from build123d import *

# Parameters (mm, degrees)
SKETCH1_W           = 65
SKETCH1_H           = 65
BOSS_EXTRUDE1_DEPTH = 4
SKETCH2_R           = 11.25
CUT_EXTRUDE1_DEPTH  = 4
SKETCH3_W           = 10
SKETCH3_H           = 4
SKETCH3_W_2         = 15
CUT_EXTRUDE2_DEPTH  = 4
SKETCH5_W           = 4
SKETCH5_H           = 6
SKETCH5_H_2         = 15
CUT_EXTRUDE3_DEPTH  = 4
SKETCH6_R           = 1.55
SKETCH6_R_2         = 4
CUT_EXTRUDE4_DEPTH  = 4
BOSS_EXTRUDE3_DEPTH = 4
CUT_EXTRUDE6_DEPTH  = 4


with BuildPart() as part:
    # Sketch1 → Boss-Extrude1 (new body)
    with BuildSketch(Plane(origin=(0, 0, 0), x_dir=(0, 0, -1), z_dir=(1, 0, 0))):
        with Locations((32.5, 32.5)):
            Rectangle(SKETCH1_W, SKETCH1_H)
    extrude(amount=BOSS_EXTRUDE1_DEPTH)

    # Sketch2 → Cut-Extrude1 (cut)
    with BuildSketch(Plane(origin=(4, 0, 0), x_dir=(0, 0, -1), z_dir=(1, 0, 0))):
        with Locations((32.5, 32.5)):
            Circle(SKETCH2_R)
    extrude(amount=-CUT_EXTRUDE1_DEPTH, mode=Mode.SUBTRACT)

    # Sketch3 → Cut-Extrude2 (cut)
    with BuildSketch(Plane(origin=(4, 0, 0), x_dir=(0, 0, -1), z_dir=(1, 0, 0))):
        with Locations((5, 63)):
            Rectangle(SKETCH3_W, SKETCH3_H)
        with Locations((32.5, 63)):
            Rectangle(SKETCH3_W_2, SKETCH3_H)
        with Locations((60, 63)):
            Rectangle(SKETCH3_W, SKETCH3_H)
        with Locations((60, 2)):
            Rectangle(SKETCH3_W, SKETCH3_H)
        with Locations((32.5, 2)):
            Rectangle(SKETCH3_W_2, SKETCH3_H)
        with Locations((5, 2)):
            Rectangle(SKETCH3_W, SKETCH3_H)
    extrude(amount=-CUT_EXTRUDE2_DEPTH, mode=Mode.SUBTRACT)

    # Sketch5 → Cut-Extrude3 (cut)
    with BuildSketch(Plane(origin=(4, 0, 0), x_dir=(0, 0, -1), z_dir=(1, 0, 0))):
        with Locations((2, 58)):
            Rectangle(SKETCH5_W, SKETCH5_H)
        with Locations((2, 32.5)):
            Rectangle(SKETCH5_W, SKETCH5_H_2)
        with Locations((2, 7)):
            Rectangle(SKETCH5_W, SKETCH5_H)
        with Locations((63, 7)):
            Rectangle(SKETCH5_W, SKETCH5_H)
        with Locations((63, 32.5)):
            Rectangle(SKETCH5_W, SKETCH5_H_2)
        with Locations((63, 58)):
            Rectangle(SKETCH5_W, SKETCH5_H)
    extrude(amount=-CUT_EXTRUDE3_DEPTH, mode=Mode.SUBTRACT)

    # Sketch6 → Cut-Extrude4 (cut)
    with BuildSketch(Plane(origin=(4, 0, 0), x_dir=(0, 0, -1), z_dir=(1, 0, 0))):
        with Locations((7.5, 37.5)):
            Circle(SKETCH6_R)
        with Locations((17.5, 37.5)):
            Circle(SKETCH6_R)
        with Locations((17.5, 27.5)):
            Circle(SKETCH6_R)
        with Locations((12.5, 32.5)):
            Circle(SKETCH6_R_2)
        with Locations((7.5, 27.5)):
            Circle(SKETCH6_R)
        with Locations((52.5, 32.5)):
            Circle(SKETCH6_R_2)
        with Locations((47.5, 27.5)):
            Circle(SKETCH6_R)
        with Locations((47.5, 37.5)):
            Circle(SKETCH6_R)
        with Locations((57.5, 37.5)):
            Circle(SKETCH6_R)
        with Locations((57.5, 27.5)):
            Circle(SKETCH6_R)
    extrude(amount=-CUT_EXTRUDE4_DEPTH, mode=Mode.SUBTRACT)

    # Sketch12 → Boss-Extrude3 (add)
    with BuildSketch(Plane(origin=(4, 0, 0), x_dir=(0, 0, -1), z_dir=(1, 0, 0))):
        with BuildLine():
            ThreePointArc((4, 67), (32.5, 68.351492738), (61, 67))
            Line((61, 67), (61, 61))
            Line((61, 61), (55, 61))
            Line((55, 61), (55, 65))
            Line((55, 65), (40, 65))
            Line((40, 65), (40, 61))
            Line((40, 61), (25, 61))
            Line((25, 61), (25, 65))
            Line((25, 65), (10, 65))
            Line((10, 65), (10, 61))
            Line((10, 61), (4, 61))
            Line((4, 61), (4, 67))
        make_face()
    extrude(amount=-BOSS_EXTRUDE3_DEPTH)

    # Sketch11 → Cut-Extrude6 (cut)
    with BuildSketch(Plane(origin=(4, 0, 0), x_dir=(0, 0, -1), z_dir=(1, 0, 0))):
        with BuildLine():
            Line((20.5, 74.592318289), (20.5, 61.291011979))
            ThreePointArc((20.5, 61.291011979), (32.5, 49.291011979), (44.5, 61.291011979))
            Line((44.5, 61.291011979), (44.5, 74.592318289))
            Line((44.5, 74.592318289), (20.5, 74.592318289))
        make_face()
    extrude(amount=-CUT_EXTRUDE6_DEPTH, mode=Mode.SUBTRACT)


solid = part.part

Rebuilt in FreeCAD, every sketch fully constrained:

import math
import FreeCAD as App
import Part
import Sketcher
Q = App.Units.Quantity

doc = App.newDocument("Part")
params = doc.addObject("Spreadsheet::Sheet", "Params")
for row, (alias, value) in enumerate([
    ("sketch1_width", "65 mm"),
    ("pad1_length", "4 mm"),
    ("sketch2_diameter", "22.5 mm"),
    ("pocket1_length", "4 mm"),
    ("sketch3_width", "4 mm"),
    ("sketch3_height", "10 mm"),
    ("sketch3_height2", "15 mm"),
    ("pocket2_length", "4 mm"),
    ("sketch4_width", "6 mm"),
    ("sketch4_width2", "15 mm"),
    ("sketch4_height", "4 mm"),
    ("pocket3_length", "4 mm"),
    ("sketch5_diameter", "8 mm"),
    ("sketch5_diameter2", "3.1 mm"),
    ("pocket4_length", "4 mm"),
    ("sketch6_width", "6 mm"),
    ("sketch6_width2", "4 mm"),
    ("sketch6_height", "15 mm"),
    ("pad2_length", "4 mm"),
    ("sketch7_radius", "12 mm"),
    ("pocket5_length", "4 mm"),
], start=1):
    params.set(f"A{row}", alias)
    params.set(f"B{row}", "=" + value)
    params.setAlias(f"B{row}", alias)

body = doc.addObject("PartDesign::Body", "Body")

sketch1 = body.newObject("Sketcher::SketchObject", "Sketch")
sketch1.AttachmentSupport = (doc.getObject("YZ_Plane"), [""])
sketch1.MapMode = "FlatFace"
sketch1.addGeometry([
    Part.LineSegment(App.Vector(65, 0, 0), App.Vector(0, 0, 0)),
    Part.LineSegment(App.Vector(0, 0, 0), App.Vector(0, -65, 0)),
    Part.LineSegment(App.Vector(0, -65, 0), App.Vector(65, -65, 0)),
    Part.LineSegment(App.Vector(65, -65, 0), App.Vector(65, 0, 0)),
], False)
sketch1.addConstraint([
    Sketcher.Constraint("Coincident", 0, 2, 1, 1),
    Sketcher.Constraint("Coincident", 1, 2, 2, 1),
    Sketcher.Constraint("Coincident", 2, 2, 3, 1),
    Sketcher.Constraint("Coincident", 3, 2, 0, 1),
    Sketcher.Constraint("Horizontal", 0),
    Sketcher.Constraint("Vertical", 1),
    Sketcher.Constraint("Horizontal", 2),
    Sketcher.Constraint("Vertical", 3),
    Sketcher.Constraint("Coincident", 0, 2, -1, 1),
    Sketcher.Constraint("Equal", 2, 1),
    Sketcher.Constraint("DistanceX", 0, 2, 0, 1, Q("65 mm")),
])
sketch1.setExpression("Constraints[10]", "Params.sketch1_width")
pad1 = body.newObject("PartDesign::Pad", "Pad")
pad1.Profile = sketch1
pad1.setExpression("Length", "Params.pad1_length")

sketch2 = body.newObject("Sketcher::SketchObject", "Sketch001")
sketch2.AttachmentSupport = (doc.getObject("YZ_Plane"), [""])
sketch2.MapMode = "FlatFace"
sketch2.AttachmentOffset = App.Placement(App.Vector(0, 0, 4), App.Rotation())
sketch2.addGeometry(Part.Circle(App.Vector(32.5, -32.5, 0), App.Vector(0, 0, 1), 11.25), False)
sketch2.addConstraint([
    Sketcher.Constraint("Diameter", 0, Q("22.5 mm")),
    Sketcher.Constraint("DistanceX", -1, 1, 0, 3, Q("32.5 mm")),
    Sketcher.Constraint("DistanceY", 0, 3, -1, 1, Q("32.5 mm")),
])
sketch2.setExpression("Constraints[0]", "Params.sketch2_diameter")
pocket1 = body.newObject("PartDesign::Pocket", "Pocket")
pocket1.Profile = sketch2
pocket1.setExpression("Length", "Params.pocket1_length")

sketch3 = body.newObject("Sketcher::SketchObject", "Sketch002")
sketch3.AttachmentSupport = (doc.getObject("YZ_Plane"), [""])
sketch3.MapMode = "FlatFace"
sketch3.AttachmentOffset = App.Placement(App.Vector(0, 0, 4), App.Rotation())
sketch3.addGeometry([
    Part.LineSegment(App.Vector(65, 0, 0), App.Vector(61, 0, 0)),
    Part.LineSegment(App.Vector(61, 0, 0), App.Vector(61, -10, 0)),
    Part.LineSegment(App.Vector(61, -10, 0), App.Vector(65, -10, 0)),
    Part.LineSegment(App.Vector(65, -10, 0), App.Vector(65, 0, 0)),
    Part.LineSegment(App.Vector(65, -25, 0), App.Vector(61, -25, 0)),
    Part.LineSegment(App.Vector(61, -25, 0), App.Vector(61, -40, 0)),
    Part.LineSegment(App.Vector(61, -40, 0), App.Vector(65, -40, 0)),
    Part.LineSegment(App.Vector(65, -40, 0), App.Vector(65, -25, 0)),
    Part.LineSegment(App.Vector(65, -55, 0), App.Vector(61, -55, 0)),
    Part.LineSegment(App.Vector(61, -55, 0), App.Vector(61, -65, 0)),
    Part.LineSegment(App.Vector(61, -65, 0), App.Vector(65, -65, 0)),
    Part.LineSegment(App.Vector(65, -65, 0), App.Vector(65, -55, 0)),
    Part.LineSegment(App.Vector(4, -55, 0), App.Vector(0, -55, 0)),
    Part.LineSegment(App.Vector(0, -55, 0), App.Vector(0, -65, 0)),
    Part.LineSegment(App.Vector(0, -65, 0), App.Vector(4, -65, 0)),
    Part.LineSegment(App.Vector(4, -65, 0), App.Vector(4, -55, 0)),
    Part.LineSegment(App.Vector(4, -25, 0), App.Vector(0, -25, 0)),
    Part.LineSegment(App.Vector(0, -25, 0), App.Vector(0, -40, 0)),
    Part.LineSegment(App.Vector(0, -40, 0), App.Vector(4, -40, 0)),
    Part.LineSegment(App.Vector(4, -40, 0), App.Vector(4, -25, 0)),
    Part.LineSegment(App.Vector(4, 0, 0), App.Vector(0, 0, 0)),
    Part.LineSegment(App.Vector(0, 0, 0), App.Vector(0, -10, 0)),
    Part.LineSegment(App.Vector(0, -10, 0), App.Vector(4, -10, 0)),
    Part.LineSegment(App.Vector(4, -10, 0), App.Vector(4, 0, 0)),
], False)
sketch3.addConstraint([
    Sketcher.Constraint("Coincident", 0, 2, 1, 1),
    Sketcher.Constraint("Coincident", 1, 2, 2, 1),
    Sketcher.Constraint("Coincident", 2, 2, 3, 1),
    Sketcher.Constraint("Coincident", 3, 2, 0, 1),
    Sketcher.Constraint("Coincident", 4, 2, 5, 1),
    Sketcher.Constraint("Coincident", 5, 2, 6, 1),
    Sketcher.Constraint("Coincident", 6, 2, 7, 1),
    Sketcher.Constraint("Coincident", 7, 2, 4, 1),
    Sketcher.Constraint("Coincident", 8, 2, 9, 1),
    Sketcher.Constraint("Coincident", 9, 2, 10, 1),
    Sketcher.Constraint("Coincident", 10, 2, 11, 1),
    Sketcher.Constraint("Coincident", 11, 2, 8, 1),
    Sketcher.Constraint("Coincident", 12, 2, 13, 1),
    Sketcher.Constraint("Coincident", 13, 2, 14, 1),
    Sketcher.Constraint("Coincident", 14, 2, 15, 1),
    Sketcher.Constraint("Coincident", 15, 2, 12, 1),
    Sketcher.Constraint("Coincident", 16, 2, 17, 1),
    Sketcher.Constraint("Coincident", 17, 2, 18, 1),
    Sketcher.Constraint("Coincident", 18, 2, 19, 1),
    Sketcher.Constraint("Coincident", 19, 2, 16, 1),
    Sketcher.Constraint("Coincident", 20, 2, 21, 1),
    Sketcher.Constraint("Coincident", 21, 2, 22, 1),
    Sketcher.Constraint("Coincident", 22, 2, 23, 1),
    Sketcher.Constraint("Coincident", 23, 2, 20, 1),
    Sketcher.Constraint("Horizontal", 0),
    Sketcher.Constraint("Vertical", 1),
    Sketcher.Constraint("Horizontal", 2),
    Sketcher.Constraint("Vertical", 3),
    Sketcher.Constraint("Horizontal", 4),
    Sketcher.Constraint("Vertical", 5),
    Sketcher.Constraint("Horizontal", 6),
    Sketcher.Constraint("Vertical", 7),
    Sketcher.Constraint("Horizontal", 8),
    Sketcher.Constraint("Vertical", 9),
    Sketcher.Constraint("Horizontal", 10),
    Sketcher.Constraint("Vertical", 11),
    Sketcher.Constraint("Horizontal", 12),
    Sketcher.Constraint("Vertical", 13),
    Sketcher.Constraint("Horizontal", 14),
    Sketcher.Constraint("Vertical", 15),
    Sketcher.Constraint("Horizontal", 16),
    Sketcher.Constraint("Vertical", 17),
    Sketcher.Constraint("Horizontal", 18),
    Sketcher.Constraint("Vertical", 19),
    Sketcher.Constraint("Horizontal", 20),
    Sketcher.Constraint("Vertical", 21),
    Sketcher.Constraint("Horizontal", 22),
    Sketcher.Constraint("Vertical", 23),
    Sketcher.Constraint("Coincident", 20, 2, -1, 1),
    Sketcher.Constraint("PointOnObject", 0, 2, -1),
    Sketcher.Constraint("PointOnObject", 12, 2, -2),
    Sketcher.Constraint("PointOnObject", 16, 2, -2),
    Sketcher.Constraint("Horizontal", 11, 2, 12, 2),
    Sketcher.Constraint("Horizontal", 10, 2, 13, 2),
    Sketcher.Constraint("Horizontal", 7, 2, 16, 2),
    Sketcher.Constraint("Horizontal", 6, 2, 17, 2),
    Sketcher.Constraint("Horizontal", 2, 2, 21, 2),
    Sketcher.Constraint("Vertical", 1, 2, 4, 2),
    Sketcher.Constraint("Vertical", 3, 2, 6, 2),
    Sketcher.Constraint("Vertical", 5, 2, 8, 2),
    Sketcher.Constraint("Vertical", 7, 2, 10, 2),
    Sketcher.Constraint("Vertical", 15, 2, 18, 2),
    Sketcher.Constraint("Vertical", 19, 2, 22, 2),
    Sketcher.Constraint("Equal", 10, 12),
    Sketcher.Constraint("Equal", 3, 9),
    Sketcher.Constraint("DistanceX", 0, 2, 0, 1, Q("4 mm")),
    Sketcher.Constraint("DistanceY", 1, 2, 1, 1, Q("10 mm")),
    Sketcher.Constraint("DistanceY", 5, 2, 5, 1, Q("15 mm")),
    Sketcher.Constraint("DistanceX", -1, 1, 0, 2, Q("61 mm")),
    Sketcher.Constraint("DistanceY", 4, 2, -1, 1, Q("25 mm")),
    Sketcher.Constraint("DistanceY", 8, 2, -1, 1, Q("55 mm")),
])
sketch3.setExpression("Constraints[65]", "Params.sketch3_width")
sketch3.setExpression("Constraints[66]", "Params.sketch3_height")
sketch3.setExpression("Constraints[67]", "Params.sketch3_height2")
pocket2 = body.newObject("PartDesign::Pocket", "Pocket001")
pocket2.Profile = sketch3
pocket2.setExpression("Length", "Params.pocket2_length")

sketch4 = body.newObject("Sketcher::SketchObject", "Sketch003")
sketch4.AttachmentSupport = (doc.getObject("YZ_Plane"), [""])
sketch4.MapMode = "FlatFace"
sketch4.AttachmentOffset = App.Placement(App.Vector(0, 0, 4), App.Rotation())
sketch4.addGeometry([
    Part.LineSegment(App.Vector(61, 0, 0), App.Vector(55, 0, 0)),
    Part.LineSegment(App.Vector(55, 0, 0), App.Vector(55, -4, 0)),
    Part.LineSegment(App.Vector(55, -4, 0), App.Vector(61, -4, 0)),
    Part.LineSegment(App.Vector(61, -4, 0), App.Vector(61, 0, 0)),
    Part.LineSegment(App.Vector(40, 0, 0), App.Vector(25, 0, 0)),
    Part.LineSegment(App.Vector(25, 0, 0), App.Vector(25, -4, 0)),
    Part.LineSegment(App.Vector(25, -4, 0), App.Vector(40, -4, 0)),
    Part.LineSegment(App.Vector(40, -4, 0), App.Vector(40, 0, 0)),
    Part.LineSegment(App.Vector(10, 0, 0), App.Vector(4, 0, 0)),
    Part.LineSegment(App.Vector(4, 0, 0), App.Vector(4, -4, 0)),
    Part.LineSegment(App.Vector(4, -4, 0), App.Vector(10, -4, 0)),
    Part.LineSegment(App.Vector(10, -4, 0), App.Vector(10, 0, 0)),
    Part.LineSegment(App.Vector(10, -61, 0), App.Vector(4, -61, 0)),
    Part.LineSegment(App.Vector(4, -61, 0), App.Vector(4, -65, 0)),
    Part.LineSegment(App.Vector(4, -65, 0), App.Vector(10, -65, 0)),
    Part.LineSegment(App.Vector(10, -65, 0), App.Vector(10, -61, 0)),
    Part.LineSegment(App.Vector(40, -61, 0), App.Vector(25, -61, 0)),
    Part.LineSegment(App.Vector(25, -61, 0), App.Vector(25, -65, 0)),
    Part.LineSegment(App.Vector(25, -65, 0), App.Vector(40, -65, 0)),
    Part.LineSegment(App.Vector(40, -65, 0), App.Vector(40, -61, 0)),
    Part.LineSegment(App.Vector(61, -61, 0), App.Vector(55, -61, 0)),
    Part.LineSegment(App.Vector(55, -61, 0), App.Vector(55, -65, 0)),
    Part.LineSegment(App.Vector(55, -65, 0), App.Vector(61, -65, 0)),
    Part.LineSegment(App.Vector(61, -65, 0), App.Vector(61, -61, 0)),
], False)
sketch4.addConstraint([
    Sketcher.Constraint("Coincident", 0, 2, 1, 1),
    Sketcher.Constraint("Coincident", 1, 2, 2, 1),
    Sketcher.Constraint("Coincident", 2, 2, 3, 1),
    Sketcher.Constraint("Coincident", 3, 2, 0, 1),
    Sketcher.Constraint("Coincident", 4, 2, 5, 1),
    Sketcher.Constraint("Coincident", 5, 2, 6, 1),
    Sketcher.Constraint("Coincident", 6, 2, 7, 1),
    Sketcher.Constraint("Coincident", 7, 2, 4, 1),
    Sketcher.Constraint("Coincident", 8, 2, 9, 1),
    Sketcher.Constraint("Coincident", 9, 2, 10, 1),
    Sketcher.Constraint("Coincident", 10, 2, 11, 1),
    Sketcher.Constraint("Coincident", 11, 2, 8, 1),
    Sketcher.Constraint("Coincident", 12, 2, 13, 1),
    Sketcher.Constraint("Coincident", 13, 2, 14, 1),
    Sketcher.Constraint("Coincident", 14, 2, 15, 1),
    Sketcher.Constraint("Coincident", 15, 2, 12, 1),
    Sketcher.Constraint("Coincident", 16, 2, 17, 1),
    Sketcher.Constraint("Coincident", 17, 2, 18, 1),
    Sketcher.Constraint("Coincident", 18, 2, 19, 1),
    Sketcher.Constraint("Coincident", 19, 2, 16, 1),
    Sketcher.Constraint("Coincident", 20, 2, 21, 1),
    Sketcher.Constraint("Coincident", 21, 2, 22, 1),
    Sketcher.Constraint("Coincident", 22, 2, 23, 1),
    Sketcher.Constraint("Coincident", 23, 2, 20, 1),
    Sketcher.Constraint("Horizontal", 0),
    Sketcher.Constraint("Vertical", 1),
    Sketcher.Constraint("Horizontal", 2),
    Sketcher.Constraint("Vertical", 3),
    Sketcher.Constraint("Horizontal", 4),
    Sketcher.Constraint("Vertical", 5),
    Sketcher.Constraint("Horizontal", 6),
    Sketcher.Constraint("Vertical", 7),
    Sketcher.Constraint("Horizontal", 8),
    Sketcher.Constraint("Vertical", 9),
    Sketcher.Constraint("Horizontal", 10),
    Sketcher.Constraint("Vertical", 11),
    Sketcher.Constraint("Horizontal", 12),
    Sketcher.Constraint("Vertical", 13),
    Sketcher.Constraint("Horizontal", 14),
    Sketcher.Constraint("Vertical", 15),
    Sketcher.Constraint("Horizontal", 16),
    Sketcher.Constraint("Vertical", 17),
    Sketcher.Constraint("Horizontal", 18),
    Sketcher.Constraint("Vertical", 19),
    Sketcher.Constraint("Horizontal", 20),
    Sketcher.Constraint("Vertical", 21),
    Sketcher.Constraint("Horizontal", 22),
    Sketcher.Constraint("Vertical", 23),
    Sketcher.Constraint("PointOnObject", 0, 2, -1),
    Sketcher.Constraint("PointOnObject", 4, 2, -1),
    Sketcher.Constraint("PointOnObject", 8, 2, -1),
    Sketcher.Constraint("Horizontal", 2, 2, 5, 2),
    Sketcher.Constraint("Horizontal", 6, 2, 9, 2),
    Sketcher.Constraint("Horizontal", 15, 2, 16, 2),
    Sketcher.Constraint("Horizontal", 14, 2, 17, 2),
    Sketcher.Constraint("Horizontal", 19, 2, 20, 2),
    Sketcher.Constraint("Horizontal", 18, 2, 21, 2),
    Sketcher.Constraint("Vertical", 9, 2, 12, 2),
    Sketcher.Constraint("Vertical", 11, 2, 14, 2),
    Sketcher.Constraint("Vertical", 5, 2, 16, 2),
    Sketcher.Constraint("Vertical", 7, 2, 18, 2),
    Sketcher.Constraint("Vertical", 1, 2, 20, 2),
    Sketcher.Constraint("Vertical", 3, 2, 22, 2),
    Sketcher.Constraint("Equal", 2, 8),
    Sketcher.Constraint("Equal", 11, 13),
    Sketcher.Constraint("DistanceX", 0, 2, 0, 1, Q("6 mm")),
    Sketcher.Constraint("DistanceX", 4, 2, 4, 1, Q("15 mm")),
    Sketcher.Constraint("DistanceY", 1, 2, 1, 1, Q("4 mm")),
    Sketcher.Constraint("DistanceX", -1, 1, 0, 2, Q("55 mm")),
    Sketcher.Constraint("DistanceX", -1, 1, 4, 2, Q("25 mm")),
    Sketcher.Constraint("DistanceX", -1, 1, 8, 2, Q("4 mm")),
    Sketcher.Constraint("DistanceY", 12, 2, -1, 1, Q("61 mm")),
])
sketch4.setExpression("Constraints[65]", "Params.sketch4_width")
sketch4.setExpression("Constraints[66]", "Params.sketch4_width2")
sketch4.setExpression("Constraints[67]", "Params.sketch4_height")
pocket3 = body.newObject("PartDesign::Pocket", "Pocket002")
pocket3.Profile = sketch4
pocket3.setExpression("Length", "Params.pocket3_length")

sketch5 = body.newObject("Sketcher::SketchObject", "Sketch004")
sketch5.AttachmentSupport = (doc.getObject("YZ_Plane"), [""])
sketch5.MapMode = "FlatFace"
sketch5.AttachmentOffset = App.Placement(App.Vector(0, 0, 4), App.Rotation())
sketch5.addGeometry([
    Part.Circle(App.Vector(37.5, -7.5, 0), App.Vector(0, 0, 1), 1.55),
    Part.Circle(App.Vector(37.5, -17.5, 0), App.Vector(0, 0, 1), 1.55),
    Part.Circle(App.Vector(27.5, -17.5, 0), App.Vector(0, 0, 1), 1.55),
    Part.Circle(App.Vector(32.5, -12.5, 0), App.Vector(0, 0, 1), 4),
    Part.Circle(App.Vector(27.5, -7.5, 0), App.Vector(0, 0, 1), 1.55),
    Part.Circle(App.Vector(32.5, -52.5, 0), App.Vector(0, 0, 1), 4),
    Part.Circle(App.Vector(27.5, -47.5, 0), App.Vector(0, 0, 1), 1.55),
    Part.Circle(App.Vector(37.5, -47.5, 0), App.Vector(0, 0, 1), 1.55),
    Part.Circle(App.Vector(37.5, -57.5, 0), App.Vector(0, 0, 1), 1.55),
    Part.Circle(App.Vector(27.5, -57.5, 0), App.Vector(0, 0, 1), 1.55),
], False)
sketch5.addConstraint([
    Sketcher.Constraint("Equal", 0, 1),
    Sketcher.Constraint("Equal", 1, 2),
    Sketcher.Constraint("Equal", 2, 4),
    Sketcher.Constraint("Equal", 3, 5),
    Sketcher.Constraint("Equal", 4, 6),
    Sketcher.Constraint("Equal", 6, 7),
    Sketcher.Constraint("Equal", 7, 8),
    Sketcher.Constraint("Equal", 8, 9),
    Sketcher.Constraint("Horizontal", 1, 3, 2, 3),
    Sketcher.Constraint("Horizontal", 0, 3, 4, 3),
    Sketcher.Constraint("Horizontal", 6, 3, 7, 3),
    Sketcher.Constraint("Horizontal", 8, 3, 9, 3),
    Sketcher.Constraint("Vertical", 0, 3, 1, 3),
    Sketcher.Constraint("Vertical", 2, 3, 4, 3),
    Sketcher.Constraint("Vertical", 3, 3, 5, 3),
    Sketcher.Constraint("Vertical", 4, 3, 6, 3),
    Sketcher.Constraint("Vertical", 1, 3, 7, 3),
    Sketcher.Constraint("Vertical", 7, 3, 8, 3),
    Sketcher.Constraint("Vertical", 6, 3, 9, 3),
    Sketcher.Constraint("Diameter", 3, Q("8 mm")),
    Sketcher.Constraint("Diameter", 0, Q("3.1 mm")),
    Sketcher.Constraint("DistanceY", 1, 3, 0, 3, Q("10 mm")),
    Sketcher.Constraint("DistanceX", 2, 3, 1, 3, Q("10 mm")),
    Sketcher.Constraint("DistanceX", 3, 3, 0, 3, Q("5 mm")),
    Sketcher.Constraint("DistanceY", 3, 3, 0, 3, Q("5 mm")),
    Sketcher.Constraint("DistanceY", 5, 3, 1, 3, Q("35 mm")),
    Sketcher.Constraint("DistanceY", 5, 3, 6, 3, Q("5 mm")),
    Sketcher.Constraint("DistanceY", 8, 3, 5, 3, Q("5 mm")),
    Sketcher.Constraint("DistanceX", -1, 1, 0, 3, Q("37.5 mm")),
    Sketcher.Constraint("DistanceY", 0, 3, -1, 1, Q("7.5 mm")),
])
sketch5.setExpression("Constraints[19]", "Params.sketch5_diameter")
sketch5.setExpression("Constraints[20]", "Params.sketch5_diameter2")
pocket4 = body.newObject("PartDesign::Pocket", "Pocket003")
pocket4.Profile = sketch5
pocket4.setExpression("Length", "Params.pocket4_length")

sketch6 = body.newObject("Sketcher::SketchObject", "Sketch005")
sketch6.AttachmentSupport = (doc.getObject("YZ_Plane"), [""])
sketch6.MapMode = "FlatFace"
sketch6.AttachmentOffset = App.Placement(App.Vector(0, 0, 4), App.Rotation())
sketch6.addGeometry([
    Part.ArcOfCircle(Part.Circle(App.Vector(-232.825313, -32.5, 0), App.Vector(0, 0, 1), 301.176806), math.radians(-5.429955), math.radians(5.429955)),
    Part.LineSegment(App.Vector(67, -4, 0), App.Vector(61, -4, 0)),
    Part.LineSegment(App.Vector(61, -4, 0), App.Vector(61, -10, 0)),
    Part.LineSegment(App.Vector(61, -10, 0), App.Vector(65, -10, 0)),
    Part.LineSegment(App.Vector(65, -10, 0), App.Vector(65, -25, 0)),
    Part.LineSegment(App.Vector(65, -25, 0), App.Vector(61, -25, 0)),
    Part.LineSegment(App.Vector(61, -25, 0), App.Vector(61, -40, 0)),
    Part.LineSegment(App.Vector(61, -40, 0), App.Vector(65, -40, 0)),
    Part.LineSegment(App.Vector(65, -40, 0), App.Vector(65, -55, 0)),
    Part.LineSegment(App.Vector(65, -55, 0), App.Vector(61, -55, 0)),
    Part.LineSegment(App.Vector(61, -55, 0), App.Vector(61, -61, 0)),
    Part.LineSegment(App.Vector(61, -61, 0), App.Vector(67, -61, 0)),
], False)
sketch6.addConstraint([
    Sketcher.Constraint("Coincident", 0, 2, 1, 1),
    Sketcher.Constraint("Coincident", 1, 2, 2, 1),
    Sketcher.Constraint("Coincident", 2, 2, 3, 1),
    Sketcher.Constraint("Coincident", 3, 2, 4, 1),
    Sketcher.Constraint("Coincident", 4, 2, 5, 1),
    Sketcher.Constraint("Coincident", 5, 2, 6, 1),
    Sketcher.Constraint("Coincident", 6, 2, 7, 1),
    Sketcher.Constraint("Coincident", 7, 2, 8, 1),
    Sketcher.Constraint("Coincident", 8, 2, 9, 1),
    Sketcher.Constraint("Coincident", 9, 2, 10, 1),
    Sketcher.Constraint("Coincident", 10, 2, 11, 1),
    Sketcher.Constraint("Coincident", 11, 2, 0, 1),
    Sketcher.Constraint("Horizontal", 1),
    Sketcher.Constraint("Vertical", 2),
    Sketcher.Constraint("Horizontal", 3),
    Sketcher.Constraint("Vertical", 4),
    Sketcher.Constraint("Horizontal", 5),
    Sketcher.Constraint("Vertical", 6),
    Sketcher.Constraint("Horizontal", 7),
    Sketcher.Constraint("Vertical", 8),
    Sketcher.Constraint("Horizontal", 9),
    Sketcher.Constraint("Vertical", 10),
    Sketcher.Constraint("Horizontal", 11),
    Sketcher.Constraint("Vertical", 2, 2, 5, 2),
    Sketcher.Constraint("Vertical", 4, 2, 7, 2),
    Sketcher.Constraint("Vertical", 6, 2, 9, 2),
    Sketcher.Constraint("Vertical", 0, 2, 11, 2),
    Sketcher.Constraint("Equal", 11, 2),
    Sketcher.Constraint("Equal", 4, 6),
    Sketcher.Constraint("Equal", 6, 8),
    Sketcher.Constraint("Equal", 2, 10),
    Sketcher.Constraint("DistanceX", 1, 2, 1, 1, Q("6 mm")),
    Sketcher.Constraint("DistanceX", 3, 1, 3, 2, Q("4 mm")),
    Sketcher.Constraint("DistanceY", 4, 2, 4, 1, Q("15 mm")),
    Sketcher.Constraint("DistanceX", -1, 1, 0, 2, Q("67 mm")),
    Sketcher.Constraint("DistanceY", 1, 2, -1, 1, Q("4 mm")),
    Sketcher.Constraint("Radius", 0, Q("301.176806 mm")),
])
sketch6.setExpression("Constraints[31]", "Params.sketch6_width")
sketch6.setExpression("Constraints[32]", "Params.sketch6_width2")
sketch6.setExpression("Constraints[33]", "Params.sketch6_height")
pad2 = body.newObject("PartDesign::Pad", "Pad001")
pad2.Profile = sketch6
pad2.setExpression("Length", "Params.pad2_length")
pad2.Reversed = True

sketch7 = body.newObject("Sketcher::SketchObject", "Sketch006")
sketch7.AttachmentSupport = (doc.getObject("YZ_Plane"), [""])
sketch7.MapMode = "FlatFace"
sketch7.AttachmentOffset = App.Placement(App.Vector(0, 0, 4), App.Rotation())
sketch7.addGeometry([
    Part.LineSegment(App.Vector(74.592318, -20.5, 0), App.Vector(61.291012, -20.5, 0)),
    Part.ArcOfCircle(Part.Circle(App.Vector(61.291012, -32.5, 0), App.Vector(0, 0, 1), 12), math.radians(90), math.radians(270)),
    Part.LineSegment(App.Vector(61.291012, -44.5, 0), App.Vector(74.592318, -44.5, 0)),
    Part.LineSegment(App.Vector(74.592318, -44.5, 0), App.Vector(74.592318, -20.5, 0)),
], False)
sketch7.addConstraint([
    Sketcher.Constraint("Tangent", 0, 2, 1, 1),
    Sketcher.Constraint("Tangent", 1, 2, 2, 1),
    Sketcher.Constraint("Coincident", 2, 2, 3, 1),
    Sketcher.Constraint("Coincident", 3, 2, 0, 1),
    Sketcher.Constraint("Horizontal", 0),
    Sketcher.Constraint("Horizontal", 2),
    Sketcher.Constraint("Vertical", 3),
    Sketcher.Constraint("Radius", 1, Q("12 mm")),
    Sketcher.Constraint("DistanceY", 1, 3, -1, 1, Q("32.5 mm")),
    Sketcher.Constraint("DistanceX", 0, 2, 0, 1, Q("13.301306 mm")),
    Sketcher.Constraint("DistanceX", -1, 1, 1, 3, Q("61.291012 mm")),
])
sketch7.setExpression("Constraints[7]", "Params.sketch7_radius")
pocket5 = body.newObject("PartDesign::Pocket", "Pocket004")
pocket5.Profile = sketch7
pocket5.setExpression("Length", "Params.pocket5_length")

doc.recompute()
